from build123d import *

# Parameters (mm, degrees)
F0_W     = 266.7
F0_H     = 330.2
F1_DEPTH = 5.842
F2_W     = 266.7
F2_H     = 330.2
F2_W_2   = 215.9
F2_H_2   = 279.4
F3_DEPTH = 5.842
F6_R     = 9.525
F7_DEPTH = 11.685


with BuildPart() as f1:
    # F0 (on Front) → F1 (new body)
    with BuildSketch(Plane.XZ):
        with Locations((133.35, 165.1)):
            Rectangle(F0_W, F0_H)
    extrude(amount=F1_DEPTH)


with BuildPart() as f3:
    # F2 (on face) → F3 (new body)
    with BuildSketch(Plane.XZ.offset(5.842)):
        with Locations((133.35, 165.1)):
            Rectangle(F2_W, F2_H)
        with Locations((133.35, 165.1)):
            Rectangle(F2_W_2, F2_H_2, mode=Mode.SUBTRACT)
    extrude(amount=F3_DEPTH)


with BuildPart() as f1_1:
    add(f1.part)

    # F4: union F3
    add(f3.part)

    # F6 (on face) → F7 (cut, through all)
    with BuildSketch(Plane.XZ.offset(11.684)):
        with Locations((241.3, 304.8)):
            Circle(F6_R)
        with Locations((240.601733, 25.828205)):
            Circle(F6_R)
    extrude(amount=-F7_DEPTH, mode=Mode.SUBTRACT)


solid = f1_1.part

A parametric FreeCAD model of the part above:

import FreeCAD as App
import Part
import Sketcher
Q = App.Units.Quantity

doc = App.newDocument("Part")
body = doc.addObject("PartDesign::Body", "Body")

# Sketch on XZ plane
sketch1 = body.newObject("Sketcher::SketchObject", "Sketch")
sketch1.AttachmentSupport = (doc.getObject("XZ_Plane"), [""])
sketch1.MapMode = "FlatFace"
sketch1.addGeometry(Part.LineSegment(App.Vector(0, 330, 0), App.Vector(0, 0, 0)), False)
sketch1.addGeometry(Part.LineSegment(App.Vector(0, 0, 0), App.Vector(267, 0, 0)), False)
sketch1.addGeometry(Part.LineSegment(App.Vector(267, 0, 0), App.Vector(267, 330, 0)), False)
sketch1.addGeometry(Part.LineSegment(App.Vector(267, 330, 0), App.Vector(0, 330, 0)), False)
sketch1.addConstraint(Sketcher.Constraint("Coincident", 0, 2, 1, 1))
sketch1.addConstraint(Sketcher.Constraint("Coincident", 1, 2, 2, 1))
sketch1.addConstraint(Sketcher.Constraint("Coincident", 2, 2, 3, 1))
sketch1.addConstraint(Sketcher.Constraint("Coincident", 3, 2, 0, 1))
sketch1.addConstraint(Sketcher.Constraint("Vertical", 0))
sketch1.addConstraint(Sketcher.Constraint("Horizontal", 1))
sketch1.addConstraint(Sketcher.Constraint("Vertical", 2))
sketch1.addConstraint(Sketcher.Constraint("Horizontal", 3))
sketch1.addConstraint(Sketcher.Constraint("Coincident", 0, 2, -1, 1))
sketch1.addConstraint(Sketcher.Constraint("DistanceY", 0, 2, 0, 1, Q("13 in")))
sketch1.addConstraint(Sketcher.Constraint("DistanceX", 1, 1, 1, 2, Q("10.5 in")))
pad1 = body.newObject("PartDesign::Pad", "Pad")
pad1.Profile = sketch1
pad1.Length = Q("0.23 in")
body2 = doc.addObject("PartDesign::Body", "Body001")

# Sketch on XZ plane
sketch2 = body2.newObject("Sketcher::SketchObject", "Sketch001")
sketch2.AttachmentSupport = (doc.getObject("XZ_Plane001"), [""])
sketch2.MapMode = "FlatFace"
sketch2.AttachmentOffset = App.Placement(App.Vector(0, 0, 0.23 * 25.4), App.Rotation())
sketch2.addGeometry(Part.LineSegment(App.Vector(0, 330, 0), App.Vector(0, 0, 0)), False)
sketch2.addGeometry(Part.LineSegment(App.Vector(0, 0, 0), App.Vector(267, 0, 0)), False)
sketch2.addGeometry(Part.LineSegment(App.Vector(267, 0, 0), App.Vector(267, 330, 0)), False)
sketch2.addGeometry(Part.LineSegment(App.Vector(267, 330, 0), App.Vector(0, 330, 0)), False)
sketch2.addGeometry(Part.LineSegment(App.Vector(241, 25, 0), App.Vector(25, 25, 0)), False)
sketch2.addGeometry(Part.LineSegment(App.Vector(25, 25, 0), App.Vector(25, 305, 0)), False)
sketch2.addGeometry(Part.LineSegment(App.Vector(25, 305, 0), App.Vector(241, 305, 0)), False)
sketch2.addGeometry(Part.LineSegment(App.Vector(241, 305, 0), App.Vector(241, 25, 0)), False)
sketch2.addConstraint(Sketcher.Constraint("Coincident", 0, 2, 1, 1))
sketch2.addConstraint(Sketcher.Constraint("Coincident", 1, 2, 2, 1))
sketch2.addConstraint(Sketcher.Constraint("Coincident", 2, 2, 3, 1))
sketch2.addConstraint(Sketcher.Constraint("Coincident", 3, 2, 0, 1))
sketch2.addConstraint(Sketcher.Constraint("Coincident", 4, 2, 5, 1))
sketch2.addConstraint(Sketcher.Constraint("Coincident", 5, 2, 6, 1))
sketch2.addConstraint(Sketcher.Constraint("Coincident", 6, 2, 7, 1))
sketch2.addConstraint(Sketcher.Constraint("Coincident", 7, 2, 4, 1))
sketch2.addConstraint(Sketcher.Constraint("Vertical", 0))
sketch2.addConstraint(Sketcher.Constraint("Horizontal", 1))
sketch2.addConstraint(Sketcher.Constraint("Vertical", 2))
sketch2.addConstraint(Sketcher.Constraint("Horizontal", 3))
sketch2.addConstraint(Sketcher.Constraint("Horizontal", 4))
sketch2.addConstraint(Sketcher.Constraint("Vertical", 5))
sketch2.addConstraint(Sketcher.Constraint("Horizontal", 6))
sketch2.addConstraint(Sketcher.Constraint("Vertical", 7))
sketch2.addConstraint(Sketcher.Constraint("Coincident", 0, 2, -1, 1))
sketch2.addConstraint(Sketcher.Constraint("DistanceY", 0, 2, 0, 1, Q("13 in")))
sketch2.addConstraint(Sketcher.Constraint("DistanceY", 5, 1, 5, 2, Q("11 in")))
sketch2.addConstraint(Sketcher.Constraint("DistanceX", 1, 1, 1, 2, Q("10.5 in")))
sketch2.addConstraint(Sketcher.Constraint("DistanceX", 4, 2, 4, 1, Q("8.5 in")))
sketch2.addConstraint(Sketcher.Constraint("DistanceX", -1, 1, 4, 2, Q("1 in")))
sketch2.addConstraint(Sketcher.Constraint("DistanceY", -1, 1, 4, 2, Q("1 in")))
pad2 = body2.newObject("PartDesign::Pad", "Pad001")
pad2.Profile = sketch2
pad2.Length = Q("0.23 in")
doc.recompute()

boolean = body.newObject("PartDesign::Boolean", "Boolean")
boolean.Type = "Fuse"
boolean.addObjects([body2])

# Sketch on XZ plane
sketch3 = body.newObject("Sketcher::SketchObject", "Sketch002")
sketch3.AttachmentSupport = (doc.getObject("XZ_Plane"), [""])
sketch3.MapMode = "FlatFace"
sketch3.AttachmentOffset = App.Placement(App.Vector(0, 0, 0.46 * 25.4), App.Rotation())
sketch3.addGeometry(Part.Circle(App.Vector(241, 305, 0), App.Vector(0, 0, 1), 10), False)
sketch3.addGeometry(Part.Circle(App.Vector(241, 26, 0), App.Vector(0, 0, 1), 10), False)
sketch3.addConstraint(Sketcher.Constraint("Equal", 0, 1))
sketch3.addConstraint(Sketcher.Constraint("Diameter", 0, Q("0.75 in")))
sketch3.addConstraint(Sketcher.Constraint("DistanceY", -1, 1, 0, 3, Q("12 in")))
sketch3.addConstraint(Sketcher.Constraint("DistanceX", -1, 1, 0, 3, Q("9.5 in")))
sketch3.addConstraint(Sketcher.Constraint("DistanceX", -1, 1, 1, 3, Q("240.601733 mm")))
sketch3.addConstraint(Sketcher.Constraint("DistanceY", -1, 1, 1, 3, Q("25.828205 mm")))
pocket1 = body.newObject("PartDesign::Pocket", "Pocket")
pocket1.Profile = sketch3
pocket1.Type = "ThroughAll"

doc.recompute()
